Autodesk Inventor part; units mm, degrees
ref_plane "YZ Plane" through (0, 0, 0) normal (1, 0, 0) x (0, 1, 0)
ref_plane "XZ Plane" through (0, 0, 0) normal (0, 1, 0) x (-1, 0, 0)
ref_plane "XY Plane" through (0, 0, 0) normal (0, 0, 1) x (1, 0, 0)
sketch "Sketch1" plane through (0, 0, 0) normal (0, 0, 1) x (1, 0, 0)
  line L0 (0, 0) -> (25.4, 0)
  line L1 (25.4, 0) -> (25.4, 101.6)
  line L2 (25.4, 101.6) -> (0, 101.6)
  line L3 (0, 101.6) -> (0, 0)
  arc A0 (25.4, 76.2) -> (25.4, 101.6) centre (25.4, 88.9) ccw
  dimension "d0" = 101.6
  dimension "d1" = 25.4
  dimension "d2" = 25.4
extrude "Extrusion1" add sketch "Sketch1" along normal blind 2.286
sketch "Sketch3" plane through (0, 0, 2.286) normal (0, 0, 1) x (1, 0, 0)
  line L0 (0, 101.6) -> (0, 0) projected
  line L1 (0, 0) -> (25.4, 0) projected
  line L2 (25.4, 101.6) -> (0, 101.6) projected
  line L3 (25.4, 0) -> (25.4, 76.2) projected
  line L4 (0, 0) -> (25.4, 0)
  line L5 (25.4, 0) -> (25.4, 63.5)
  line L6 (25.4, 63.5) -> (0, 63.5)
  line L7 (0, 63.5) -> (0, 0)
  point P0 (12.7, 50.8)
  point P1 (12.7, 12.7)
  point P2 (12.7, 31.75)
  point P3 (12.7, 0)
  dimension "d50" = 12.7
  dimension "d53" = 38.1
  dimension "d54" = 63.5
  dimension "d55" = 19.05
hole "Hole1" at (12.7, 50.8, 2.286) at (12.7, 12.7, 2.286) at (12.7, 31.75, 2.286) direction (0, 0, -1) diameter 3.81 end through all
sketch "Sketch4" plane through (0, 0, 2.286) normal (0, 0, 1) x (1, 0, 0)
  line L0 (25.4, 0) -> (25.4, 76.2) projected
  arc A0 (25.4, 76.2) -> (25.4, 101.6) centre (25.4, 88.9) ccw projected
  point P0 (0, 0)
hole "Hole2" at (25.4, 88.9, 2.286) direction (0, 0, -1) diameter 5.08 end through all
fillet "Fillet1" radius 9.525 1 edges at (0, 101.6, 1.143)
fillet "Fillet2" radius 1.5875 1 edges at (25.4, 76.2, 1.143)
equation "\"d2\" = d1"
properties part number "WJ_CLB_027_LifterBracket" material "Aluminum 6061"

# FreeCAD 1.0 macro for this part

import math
import FreeCAD as App
import Part
import Sketcher
Q = App.Units.Quantity


def edges_at(feature, points):
    """Names of the edges that pass closest to the given points."""
    edges = feature.Shape.Edges
    near = lambda p: min(range(len(edges)), key=lambda i: edges[i].distToShape(Part.Vertex(*p))[0])
    return sorted({f"Edge{near(p) + 1}" for p in points})

doc = App.newDocument("Part")
body = doc.addObject("PartDesign::Body", "Body")

sketch1 = body.newObject("Sketcher::SketchObject", "Sketch")
sketch1.AttachmentSupport = (doc.getObject("XY_Plane"), [""])
sketch1.MapMode = "FlatFace"
sketch1.addGeometry([
    Part.LineSegment(App.Vector(0, 102, 0), App.Vector(0, 0, 0)),
    Part.LineSegment(App.Vector(0, 0, 0), App.Vector(25, 0, 0)),
    Part.LineSegment(App.Vector(25, 0, 0), App.Vector(25, 76, 0)),
    Part.ArcOfCircle(Part.Circle(App.Vector(25, 89, 0), App.Vector(0, 0, 1), 13), math.radians(-90), math.radians(90)),
    Part.LineSegment(App.Vector(25, 102, 0), App.Vector(0, 102, 0)),
], False)
sketch1.addConstraint([
    Sketcher.Constraint("Coincident", 0, 2, 1, 1),
    Sketcher.Constraint("Coincident", 1, 2, 2, 1),
    Sketcher.Constraint("Coincident", 2, 2, 3, 1),
    Sketcher.Constraint("Tangent", 3, 2, 4, 1),
    Sketcher.Constraint("Coincident", 4, 2, 0, 1),
    Sketcher.Constraint("Vertical", 0),
    Sketcher.Constraint("Horizontal", 1),
    Sketcher.Constraint("Vertical", 2),
    Sketcher.Constraint("Horizontal", 4),
    Sketcher.Constraint("Coincident", 0, 2, -1, 1),
    Sketcher.Constraint("Vertical", 3, 3, 1, 2),
    Sketcher.Constraint("Radius", 3, Q("0.5 in")),
    Sketcher.Constraint("DistanceX", 1, 1, 1, 2, Q("1 in")),
    Sketcher.Constraint("DistanceY", 0, 2, 0, 1, Q("4 in")),
])
pad1 = body.newObject("PartDesign::Pad", "Pad")
pad1.Profile = sketch1
pad1.Length = Q("0.09 in")

sketch2 = body.newObject("Sketcher::SketchObject", "Sketch001")
sketch2.AttachmentSupport = (doc.getObject("XY_Plane"), [""])
sketch2.MapMode = "FlatFace"
sketch2.AttachmentOffset = App.Placement(App.Vector(0, 0, 0.09 * 25.4), App.Rotation())
sketch2.addGeometry([
    Part.Circle(App.Vector(12.7, 50.8, 0), App.Vector(0, 0, 1), 1.9),
    Part.Circle(App.Vector(12.7, 12.7, 0), App.Vector(0, 0, 1), 1.9),
    Part.Circle(App.Vector(12.7, 31.8, 0), App.Vector(0, 0, 1), 1.9),
], False)
sketch2.addConstraint([
    Sketcher.Constraint("Equal", 0, 1),
    Sketcher.Constraint("Equal", 1, 2),
    Sketcher.Constraint("Vertical", 0, 3, 1, 3),
    Sketcher.Constraint("Vertical", 1, 3, 2, 3),
    Sketcher.Constraint("Diameter", 0, Q("0.15 in")),
    Sketcher.Constraint("DistanceY", -1, 1, 0, 3, Q("2 in")),
    Sketcher.Constraint("DistanceX", -1, 1, 0, 3, Q("0.5 in")),
    Sketcher.Constraint("DistanceY", -1, 1, 1, 3, Q("0.5 in")),
    Sketcher.Constraint("DistanceY", -1, 1, 2, 3, Q("1.25 in")),
])
doc.recompute()
hole = body.newObject("PartDesign::Hole", "Hole")
hole.Profile = sketch2
hole.ThreadType = "None"
hole.Diameter = Q("0.15 in")
hole.DepthType = "ThroughAll"

sketch3 = body.newObject("Sketcher::SketchObject", "Sketch002")
sketch3.AttachmentSupport = (doc.getObject("XY_Plane"), [""])
sketch3.MapMode = "FlatFace"
sketch3.AttachmentOffset = App.Placement(App.Vector(0, 0, 0.09 * 25.4), App.Rotation())
sketch3.addGeometry(Part.Circle(App.Vector(25.4, 88.9, 0), App.Vector(0, 0, 1), 2.5), False)
sketch3.addConstraint([
    Sketcher.Constraint("Diameter", 0, Q("0.2 in")),
    Sketcher.Constraint("DistanceX", -1, 1, 0, 3, Q("1 in")),
    Sketcher.Constraint("DistanceY", -1, 1, 0, 3, Q("3.5 in")),
])
doc.recompute()
hole2 = body.newObject("PartDesign::Hole", "Hole001")
hole2.Profile = sketch3
hole2.ThreadType = "None"
hole2.Diameter = Q("0.2 in")
hole2.DepthType = "ThroughAll"
doc.recompute()

fillet = body.newObject("PartDesign::Fillet", "Fillet")
fillet.Base = (hole2, edges_at(hole2, [(0, 101.6, 1.143)]))
fillet.Radius = Q("0.375 in")
doc.recompute()

fillet2 = body.newObject("PartDesign::Fillet", "Fillet001")
fillet2.Base = (fillet, edges_at(fillet, [(25.4, 76.2, 1.143)]))
fillet2.Radius = Q("0.0625 in")

doc.recompute()
